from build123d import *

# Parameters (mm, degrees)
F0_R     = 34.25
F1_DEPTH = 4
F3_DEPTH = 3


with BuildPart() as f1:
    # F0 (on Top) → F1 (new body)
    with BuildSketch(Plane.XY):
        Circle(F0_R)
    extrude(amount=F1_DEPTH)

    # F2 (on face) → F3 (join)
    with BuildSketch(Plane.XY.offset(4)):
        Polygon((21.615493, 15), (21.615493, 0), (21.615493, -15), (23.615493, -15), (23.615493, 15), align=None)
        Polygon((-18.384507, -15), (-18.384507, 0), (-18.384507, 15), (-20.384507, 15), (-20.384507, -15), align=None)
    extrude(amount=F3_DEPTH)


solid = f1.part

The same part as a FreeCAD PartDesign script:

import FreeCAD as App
import Part
import Sketcher
Q = App.Units.Quantity

doc = App.newDocument("Part")
body = doc.addObject("PartDesign::Body", "Body")

# Sketch on XY plane
sketch1 = body.newObject("Sketcher::SketchObject", "Sketch")
sketch1.AttachmentSupport = (doc.getObject("XY_Plane"), [""])
sketch1.MapMode = "FlatFace"
sketch1.addGeometry(Part.Circle(App.Vector(0, 0, 0), App.Vector(0, 0, 1), 34), False)
sketch1.addConstraint(Sketcher.Constraint("Coincident", 0, 3, -1, 1))
sketch1.addConstraint(Sketcher.Constraint("Diameter", 0, Q("68.5 mm")))
pad1 = body.newObject("PartDesign::Pad", "Pad")
pad1.Profile = sketch1
pad1.Length = 4

# Sketch on XY plane
sketch2 = body.newObject("Sketcher::SketchObject", "Sketch001")
sketch2.AttachmentSupport = (doc.getObject("XY_Plane"), [""])
sketch2.MapMode = "FlatFace"
sketch2.AttachmentOffset = App.Placement(App.Vector(0, 0, 4), App.Rotation())
sketch2.addGeometry(Part.LineSegment(App.Vector(21.6, 15, 0), App.Vector(21.6, -15, 0)), False)
sketch2.addGeometry(Part.LineSegment(App.Vector(21.6, -15, 0), App.Vector(23.6, -15, 0)), False)
sketch2.addGeometry(Part.LineSegment(App.Vector(23.6, -15, 0), App.Vector(23.6, 15, 0)), False)
sketch2.addGeometry(Part.LineSegment(App.Vector(23.6, 15, 0), App.Vector(21.6, 15, 0)), False)
sketch2.addGeometry(Part.LineSegment(App.Vector(-18.4, -15, 0), App.Vector(-18.4, 15, 0)), False)
sketch2.addGeometry(Part.LineSegment(App.Vector(-18.4, 15, 0), App.Vector(-20.4, 15, 0)), False)
sketch2.addGeometry(Part.LineSegment(App.Vector(-20.4, 15, 0), App.Vector(-20.4, -15, 0)), False)
sketch2.addGeometry(Part.LineSegment(App.Vector(-20.4, -15, 0), App.Vector(-18.4, -15, 0)), False)
sketch2.addConstraint(Sketcher.Constraint("Coincident", 0, 2, 1, 1))
sketch2.addConstraint(Sketcher.Constraint("Coincident", 1, 2, 2, 1))
sketch2.addConstraint(Sketcher.Constraint("Coincident", 2, 2, 3, 1))
sketch2.addConstraint(Sketcher.Constraint("Coincident", 3, 2, 0, 1))
sketch2.addConstraint(Sketcher.Constraint("Coincident", 4, 2, 5, 1))
sketch2.addConstraint(Sketcher.Constraint("Coincident", 5, 2, 6, 1))
sketch2.addConstraint(Sketcher.Constraint("Coincident", 6, 2, 7, 1))
sketch2.addConstraint(Sketcher.Constraint("Coincident", 7, 2, 4, 1))
sketch2.addConstraint(Sketcher.Constraint("Vertical", 0))
sketch2.addConstraint(Sketcher.Constraint("Horizontal", 1))
sketch2.addConstraint(Sketcher.Constraint("Vertical", 2))
sketch2.addConstraint(Sketcher.Constraint("Horizontal", 3))
sketch2.addConstraint(Sketcher.Constraint("Vertical", 4))
sketch2.addConstraint(Sketcher.Constraint("Horizontal", 5))
sketch2.addConstraint(Sketcher.Constraint("Vertical", 6))
sketch2.addConstraint(Sketcher.Constraint("Horizontal", 7))
sketch2.addConstraint(Sketcher.Constraint("Horizontal", 3, 2, 4, 2))
sketch2.addConstraint(Sketcher.Constraint("Horizontal", 1, 2, 6, 2))
sketch2.addConstraint(Sketcher.Constraint("Equal", 3, 5))
sketch2.addConstraint(Sketcher.Constraint("DistanceX", 1, 1, 1, 2, Q("2 mm")))
sketch2.addConstraint(Sketcher.Constraint("DistanceY", 0, 2, 0, 1, Q("30 mm")))
sketch2.addConstraint(Sketcher.Constraint("DistanceY", 0, 2, -1, 1, Q("15 mm")))
sketch2.addConstraint(Sketcher.Constraint("DistanceX", 4, 2, 3, 2, Q("40 mm")))
sketch2.addConstraint(Sketcher.Constraint("DistanceX", -1, 1, 0, 2, Q("21.615493 mm")))
pad2 = body.newObject("PartDesign::Pad", "Pad001")
pad2.Profile = sketch2
pad2.Length = 3

doc.recompute()
